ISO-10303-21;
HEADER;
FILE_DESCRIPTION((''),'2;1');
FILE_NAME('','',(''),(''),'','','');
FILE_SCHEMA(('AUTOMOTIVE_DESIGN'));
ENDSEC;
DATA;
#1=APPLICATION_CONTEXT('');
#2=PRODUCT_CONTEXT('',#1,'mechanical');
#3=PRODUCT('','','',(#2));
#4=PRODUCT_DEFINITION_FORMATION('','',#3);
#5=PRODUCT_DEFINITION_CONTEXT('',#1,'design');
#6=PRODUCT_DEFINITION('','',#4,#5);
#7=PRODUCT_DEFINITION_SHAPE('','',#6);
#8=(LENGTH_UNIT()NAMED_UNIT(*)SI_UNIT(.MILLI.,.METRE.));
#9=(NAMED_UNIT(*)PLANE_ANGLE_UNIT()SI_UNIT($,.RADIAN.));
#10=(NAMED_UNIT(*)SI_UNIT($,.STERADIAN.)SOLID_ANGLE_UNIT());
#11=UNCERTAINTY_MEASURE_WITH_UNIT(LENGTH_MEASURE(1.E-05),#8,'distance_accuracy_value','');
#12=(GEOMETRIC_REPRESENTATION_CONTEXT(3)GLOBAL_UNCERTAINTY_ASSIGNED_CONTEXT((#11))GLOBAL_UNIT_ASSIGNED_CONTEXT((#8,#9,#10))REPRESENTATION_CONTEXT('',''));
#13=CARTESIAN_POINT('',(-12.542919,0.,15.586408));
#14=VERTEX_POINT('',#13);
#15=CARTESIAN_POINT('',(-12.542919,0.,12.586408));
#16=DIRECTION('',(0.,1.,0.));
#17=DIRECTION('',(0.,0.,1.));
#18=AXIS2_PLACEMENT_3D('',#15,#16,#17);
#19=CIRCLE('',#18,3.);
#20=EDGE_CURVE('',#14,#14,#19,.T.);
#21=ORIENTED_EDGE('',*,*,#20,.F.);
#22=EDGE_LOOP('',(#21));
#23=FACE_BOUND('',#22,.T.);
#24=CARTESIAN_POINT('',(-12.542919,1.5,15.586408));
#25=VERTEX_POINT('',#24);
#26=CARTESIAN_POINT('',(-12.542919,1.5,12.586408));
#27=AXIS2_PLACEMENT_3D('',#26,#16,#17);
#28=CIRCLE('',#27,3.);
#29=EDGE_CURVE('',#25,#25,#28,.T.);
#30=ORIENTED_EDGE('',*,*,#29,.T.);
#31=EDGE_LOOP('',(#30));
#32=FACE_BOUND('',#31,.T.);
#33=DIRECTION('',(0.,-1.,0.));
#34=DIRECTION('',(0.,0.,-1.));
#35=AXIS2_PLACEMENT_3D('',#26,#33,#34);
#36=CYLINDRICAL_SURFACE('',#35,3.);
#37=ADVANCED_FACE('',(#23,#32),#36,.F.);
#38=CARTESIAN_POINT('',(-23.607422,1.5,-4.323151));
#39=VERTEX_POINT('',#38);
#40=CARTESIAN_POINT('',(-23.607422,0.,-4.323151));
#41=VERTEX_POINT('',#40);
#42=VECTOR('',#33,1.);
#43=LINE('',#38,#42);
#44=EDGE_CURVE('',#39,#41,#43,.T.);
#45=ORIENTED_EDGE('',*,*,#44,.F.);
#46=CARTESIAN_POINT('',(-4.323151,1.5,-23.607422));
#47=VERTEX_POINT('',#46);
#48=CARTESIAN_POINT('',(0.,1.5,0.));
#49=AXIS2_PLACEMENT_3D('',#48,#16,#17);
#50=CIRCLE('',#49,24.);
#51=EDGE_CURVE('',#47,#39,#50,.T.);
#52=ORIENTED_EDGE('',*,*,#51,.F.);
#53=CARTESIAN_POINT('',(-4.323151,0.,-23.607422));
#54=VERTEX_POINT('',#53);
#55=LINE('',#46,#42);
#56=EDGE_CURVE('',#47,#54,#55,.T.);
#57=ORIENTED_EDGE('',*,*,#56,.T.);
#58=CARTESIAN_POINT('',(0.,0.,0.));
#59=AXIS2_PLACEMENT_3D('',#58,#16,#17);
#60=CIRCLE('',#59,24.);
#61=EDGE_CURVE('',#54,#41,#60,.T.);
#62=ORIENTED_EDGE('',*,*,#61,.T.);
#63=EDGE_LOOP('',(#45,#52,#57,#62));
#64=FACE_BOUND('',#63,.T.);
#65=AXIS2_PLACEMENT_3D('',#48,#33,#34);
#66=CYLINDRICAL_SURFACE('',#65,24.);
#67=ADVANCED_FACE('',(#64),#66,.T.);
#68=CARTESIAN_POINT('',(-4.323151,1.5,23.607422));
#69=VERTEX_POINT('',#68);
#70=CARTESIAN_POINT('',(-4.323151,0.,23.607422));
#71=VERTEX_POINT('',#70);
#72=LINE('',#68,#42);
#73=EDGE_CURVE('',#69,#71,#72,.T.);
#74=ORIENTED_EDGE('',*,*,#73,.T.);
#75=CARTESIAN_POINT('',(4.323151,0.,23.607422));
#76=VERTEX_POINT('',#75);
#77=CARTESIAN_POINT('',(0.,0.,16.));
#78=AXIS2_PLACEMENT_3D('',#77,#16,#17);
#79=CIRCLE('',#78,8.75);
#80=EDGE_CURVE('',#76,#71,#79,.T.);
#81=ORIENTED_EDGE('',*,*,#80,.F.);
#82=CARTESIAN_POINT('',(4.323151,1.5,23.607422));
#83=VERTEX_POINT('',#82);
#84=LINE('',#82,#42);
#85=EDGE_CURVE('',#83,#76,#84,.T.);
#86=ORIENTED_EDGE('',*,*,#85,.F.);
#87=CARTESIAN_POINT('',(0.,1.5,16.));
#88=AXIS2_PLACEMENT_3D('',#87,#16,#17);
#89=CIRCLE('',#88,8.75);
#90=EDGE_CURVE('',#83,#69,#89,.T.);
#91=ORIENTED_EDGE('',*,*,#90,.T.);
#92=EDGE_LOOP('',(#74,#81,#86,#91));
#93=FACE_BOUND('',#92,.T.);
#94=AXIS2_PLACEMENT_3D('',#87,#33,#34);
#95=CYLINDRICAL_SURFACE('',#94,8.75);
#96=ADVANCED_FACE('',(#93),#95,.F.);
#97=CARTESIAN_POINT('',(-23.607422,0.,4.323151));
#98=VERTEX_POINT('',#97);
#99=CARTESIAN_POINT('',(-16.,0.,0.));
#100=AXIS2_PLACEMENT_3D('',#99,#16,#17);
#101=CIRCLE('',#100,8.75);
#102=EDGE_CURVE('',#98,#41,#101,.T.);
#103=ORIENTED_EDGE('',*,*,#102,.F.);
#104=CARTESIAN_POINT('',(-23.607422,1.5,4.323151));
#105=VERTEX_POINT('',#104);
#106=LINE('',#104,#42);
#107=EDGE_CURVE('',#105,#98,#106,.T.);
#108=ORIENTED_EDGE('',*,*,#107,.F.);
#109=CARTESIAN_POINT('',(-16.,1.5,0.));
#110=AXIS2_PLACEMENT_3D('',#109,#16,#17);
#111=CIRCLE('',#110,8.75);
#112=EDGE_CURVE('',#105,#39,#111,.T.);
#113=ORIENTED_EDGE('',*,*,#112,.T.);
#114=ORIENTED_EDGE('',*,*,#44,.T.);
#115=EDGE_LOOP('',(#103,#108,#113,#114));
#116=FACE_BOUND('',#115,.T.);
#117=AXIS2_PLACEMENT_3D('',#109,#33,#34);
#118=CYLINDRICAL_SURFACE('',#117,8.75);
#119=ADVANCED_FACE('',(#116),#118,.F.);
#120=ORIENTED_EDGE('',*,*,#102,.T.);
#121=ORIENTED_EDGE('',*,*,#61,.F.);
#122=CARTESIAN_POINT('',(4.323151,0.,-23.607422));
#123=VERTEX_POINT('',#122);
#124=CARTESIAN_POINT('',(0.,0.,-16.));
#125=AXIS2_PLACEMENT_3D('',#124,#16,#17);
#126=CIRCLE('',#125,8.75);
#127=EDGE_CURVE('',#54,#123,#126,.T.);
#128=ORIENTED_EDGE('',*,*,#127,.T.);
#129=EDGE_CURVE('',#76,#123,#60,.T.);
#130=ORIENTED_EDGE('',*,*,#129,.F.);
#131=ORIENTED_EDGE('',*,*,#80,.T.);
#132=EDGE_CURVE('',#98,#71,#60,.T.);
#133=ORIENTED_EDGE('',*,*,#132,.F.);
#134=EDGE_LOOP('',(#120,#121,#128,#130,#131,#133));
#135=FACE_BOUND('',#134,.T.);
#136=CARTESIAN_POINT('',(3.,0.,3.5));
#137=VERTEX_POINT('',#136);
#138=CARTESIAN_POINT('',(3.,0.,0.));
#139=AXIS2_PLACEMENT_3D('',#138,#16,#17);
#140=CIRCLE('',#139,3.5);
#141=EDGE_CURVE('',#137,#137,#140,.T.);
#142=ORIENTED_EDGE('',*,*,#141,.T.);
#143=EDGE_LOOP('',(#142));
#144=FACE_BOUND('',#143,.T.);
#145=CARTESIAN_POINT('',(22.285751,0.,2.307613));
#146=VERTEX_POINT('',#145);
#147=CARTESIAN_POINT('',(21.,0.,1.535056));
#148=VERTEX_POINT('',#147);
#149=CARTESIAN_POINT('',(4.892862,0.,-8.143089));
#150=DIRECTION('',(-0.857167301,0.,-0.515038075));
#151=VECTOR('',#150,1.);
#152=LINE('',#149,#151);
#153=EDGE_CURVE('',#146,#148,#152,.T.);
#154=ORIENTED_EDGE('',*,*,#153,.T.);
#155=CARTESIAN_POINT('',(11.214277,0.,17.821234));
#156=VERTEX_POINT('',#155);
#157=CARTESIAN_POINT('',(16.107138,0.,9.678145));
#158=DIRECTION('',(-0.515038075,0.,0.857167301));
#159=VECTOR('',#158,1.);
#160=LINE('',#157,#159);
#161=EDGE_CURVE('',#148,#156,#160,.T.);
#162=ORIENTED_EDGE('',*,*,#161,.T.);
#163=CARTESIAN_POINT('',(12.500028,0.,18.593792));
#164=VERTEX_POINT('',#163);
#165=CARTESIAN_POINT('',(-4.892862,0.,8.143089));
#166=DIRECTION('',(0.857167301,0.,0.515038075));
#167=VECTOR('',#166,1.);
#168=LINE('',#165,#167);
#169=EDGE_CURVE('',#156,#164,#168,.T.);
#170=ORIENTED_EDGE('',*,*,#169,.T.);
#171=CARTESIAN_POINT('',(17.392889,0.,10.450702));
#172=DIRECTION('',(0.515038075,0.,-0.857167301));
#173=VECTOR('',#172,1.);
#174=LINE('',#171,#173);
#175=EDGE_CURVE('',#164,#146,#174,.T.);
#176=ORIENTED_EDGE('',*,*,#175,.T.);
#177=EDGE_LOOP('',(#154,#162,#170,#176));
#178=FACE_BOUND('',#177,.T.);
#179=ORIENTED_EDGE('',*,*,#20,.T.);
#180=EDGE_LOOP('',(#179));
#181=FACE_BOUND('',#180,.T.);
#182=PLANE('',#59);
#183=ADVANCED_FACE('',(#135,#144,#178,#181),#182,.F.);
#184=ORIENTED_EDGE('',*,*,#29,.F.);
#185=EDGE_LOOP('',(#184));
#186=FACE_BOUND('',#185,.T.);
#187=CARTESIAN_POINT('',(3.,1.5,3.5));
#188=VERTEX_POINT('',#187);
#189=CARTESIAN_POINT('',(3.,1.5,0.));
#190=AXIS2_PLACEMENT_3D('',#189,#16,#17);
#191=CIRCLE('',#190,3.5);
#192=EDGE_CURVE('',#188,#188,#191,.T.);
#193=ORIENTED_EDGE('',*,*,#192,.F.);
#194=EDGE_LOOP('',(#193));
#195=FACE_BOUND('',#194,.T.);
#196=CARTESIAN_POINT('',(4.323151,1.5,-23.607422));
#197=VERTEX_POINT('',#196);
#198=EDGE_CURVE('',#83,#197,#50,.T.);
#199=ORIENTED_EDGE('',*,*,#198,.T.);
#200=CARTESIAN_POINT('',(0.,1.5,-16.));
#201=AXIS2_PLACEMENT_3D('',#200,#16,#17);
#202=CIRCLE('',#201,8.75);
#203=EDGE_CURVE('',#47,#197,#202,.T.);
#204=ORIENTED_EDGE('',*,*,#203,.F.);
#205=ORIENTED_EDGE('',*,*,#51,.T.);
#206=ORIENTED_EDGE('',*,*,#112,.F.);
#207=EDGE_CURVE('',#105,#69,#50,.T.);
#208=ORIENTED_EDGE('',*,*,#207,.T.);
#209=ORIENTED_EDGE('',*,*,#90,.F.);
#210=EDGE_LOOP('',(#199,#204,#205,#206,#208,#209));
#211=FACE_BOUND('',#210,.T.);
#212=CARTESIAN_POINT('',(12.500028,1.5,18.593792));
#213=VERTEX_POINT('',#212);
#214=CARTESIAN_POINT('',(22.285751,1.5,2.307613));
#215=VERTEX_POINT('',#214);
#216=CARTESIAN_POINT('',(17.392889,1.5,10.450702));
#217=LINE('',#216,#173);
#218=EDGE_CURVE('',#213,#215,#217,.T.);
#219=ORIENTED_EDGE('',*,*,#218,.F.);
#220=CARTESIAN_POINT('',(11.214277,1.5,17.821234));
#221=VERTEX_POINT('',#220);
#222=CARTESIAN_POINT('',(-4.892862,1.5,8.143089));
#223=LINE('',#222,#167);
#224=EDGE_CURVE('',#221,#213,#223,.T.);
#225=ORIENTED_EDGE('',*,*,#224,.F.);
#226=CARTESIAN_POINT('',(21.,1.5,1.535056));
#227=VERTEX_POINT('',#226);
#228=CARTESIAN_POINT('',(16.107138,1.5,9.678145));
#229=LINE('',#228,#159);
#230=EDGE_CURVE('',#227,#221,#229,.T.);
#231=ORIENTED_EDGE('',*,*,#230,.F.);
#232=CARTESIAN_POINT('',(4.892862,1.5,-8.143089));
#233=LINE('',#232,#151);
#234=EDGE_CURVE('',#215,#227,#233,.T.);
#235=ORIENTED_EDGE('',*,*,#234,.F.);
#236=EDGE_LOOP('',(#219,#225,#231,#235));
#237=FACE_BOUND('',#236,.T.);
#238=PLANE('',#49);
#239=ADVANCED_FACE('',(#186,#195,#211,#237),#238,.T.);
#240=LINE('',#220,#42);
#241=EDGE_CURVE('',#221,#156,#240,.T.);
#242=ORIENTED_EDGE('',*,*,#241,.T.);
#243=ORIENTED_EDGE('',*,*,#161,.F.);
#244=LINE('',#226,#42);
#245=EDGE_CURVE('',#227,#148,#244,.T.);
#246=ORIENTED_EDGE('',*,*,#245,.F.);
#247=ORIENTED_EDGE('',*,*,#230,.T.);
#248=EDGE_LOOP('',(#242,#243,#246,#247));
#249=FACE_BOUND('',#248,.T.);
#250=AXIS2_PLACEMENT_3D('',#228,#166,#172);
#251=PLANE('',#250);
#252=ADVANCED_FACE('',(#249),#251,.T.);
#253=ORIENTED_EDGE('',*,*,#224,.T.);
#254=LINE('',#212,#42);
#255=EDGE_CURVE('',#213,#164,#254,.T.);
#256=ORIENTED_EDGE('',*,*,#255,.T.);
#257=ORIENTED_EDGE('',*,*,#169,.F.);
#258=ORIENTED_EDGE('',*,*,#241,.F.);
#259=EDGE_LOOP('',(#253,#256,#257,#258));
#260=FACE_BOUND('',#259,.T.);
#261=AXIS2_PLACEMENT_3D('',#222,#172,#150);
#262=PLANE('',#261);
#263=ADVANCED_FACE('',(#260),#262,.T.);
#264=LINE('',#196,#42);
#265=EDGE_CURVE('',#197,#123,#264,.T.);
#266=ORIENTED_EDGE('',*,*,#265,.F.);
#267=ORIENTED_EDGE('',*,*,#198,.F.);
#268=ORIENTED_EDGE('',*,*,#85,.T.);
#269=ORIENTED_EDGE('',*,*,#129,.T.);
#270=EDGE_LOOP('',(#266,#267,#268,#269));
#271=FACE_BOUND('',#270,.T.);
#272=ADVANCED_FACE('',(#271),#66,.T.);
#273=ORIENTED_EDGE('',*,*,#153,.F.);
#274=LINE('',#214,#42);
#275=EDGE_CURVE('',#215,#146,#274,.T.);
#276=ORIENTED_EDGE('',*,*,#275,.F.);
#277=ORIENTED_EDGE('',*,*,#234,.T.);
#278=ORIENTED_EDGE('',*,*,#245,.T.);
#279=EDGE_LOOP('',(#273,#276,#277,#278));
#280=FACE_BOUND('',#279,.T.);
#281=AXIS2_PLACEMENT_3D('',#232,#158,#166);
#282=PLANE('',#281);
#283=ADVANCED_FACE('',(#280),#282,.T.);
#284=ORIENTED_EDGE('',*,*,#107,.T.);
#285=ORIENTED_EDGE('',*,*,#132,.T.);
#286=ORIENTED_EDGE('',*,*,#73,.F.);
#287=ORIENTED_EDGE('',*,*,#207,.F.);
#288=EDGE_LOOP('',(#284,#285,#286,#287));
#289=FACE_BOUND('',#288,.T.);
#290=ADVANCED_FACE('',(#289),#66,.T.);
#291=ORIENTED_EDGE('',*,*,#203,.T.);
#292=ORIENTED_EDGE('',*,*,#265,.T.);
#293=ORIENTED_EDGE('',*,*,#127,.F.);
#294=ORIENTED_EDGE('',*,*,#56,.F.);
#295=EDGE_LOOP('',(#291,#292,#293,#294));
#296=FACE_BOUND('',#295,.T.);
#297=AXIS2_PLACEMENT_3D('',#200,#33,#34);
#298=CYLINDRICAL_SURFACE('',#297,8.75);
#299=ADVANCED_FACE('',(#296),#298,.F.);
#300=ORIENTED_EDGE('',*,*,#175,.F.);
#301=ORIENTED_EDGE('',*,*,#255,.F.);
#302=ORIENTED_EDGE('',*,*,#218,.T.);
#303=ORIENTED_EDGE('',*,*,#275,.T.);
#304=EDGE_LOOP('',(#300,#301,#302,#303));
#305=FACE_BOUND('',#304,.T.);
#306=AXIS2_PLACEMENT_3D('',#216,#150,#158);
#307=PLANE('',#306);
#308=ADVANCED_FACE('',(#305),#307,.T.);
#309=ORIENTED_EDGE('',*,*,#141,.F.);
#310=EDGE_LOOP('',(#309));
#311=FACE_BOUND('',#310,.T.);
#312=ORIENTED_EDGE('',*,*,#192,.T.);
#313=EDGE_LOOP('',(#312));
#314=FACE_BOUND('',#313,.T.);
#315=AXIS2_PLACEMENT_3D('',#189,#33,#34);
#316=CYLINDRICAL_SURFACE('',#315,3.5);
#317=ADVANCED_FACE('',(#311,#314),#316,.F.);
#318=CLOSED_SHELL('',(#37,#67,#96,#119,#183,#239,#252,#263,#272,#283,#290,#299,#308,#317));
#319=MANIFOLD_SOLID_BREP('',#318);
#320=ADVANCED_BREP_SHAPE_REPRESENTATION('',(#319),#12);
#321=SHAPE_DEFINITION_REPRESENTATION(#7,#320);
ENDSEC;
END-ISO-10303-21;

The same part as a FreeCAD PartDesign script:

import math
import FreeCAD as App
import Part
import Sketcher
from FreeCAD import Vector
Q = App.Units.Quantity

doc = App.newDocument("Part")
params = doc.addObject("Spreadsheet::Sheet", "Params")
for row, (alias, value) in enumerate([
    ("sketch1_diameter", "6 mm"),
    ("sketch1_diameter2", "7 mm"),
    ("sketch1_radius", "24 mm"),
    ("sketch1_radius2", "8.75 mm"),
    ("sketch1_length", "19 mm"),
    ("pad1_length", "1.5 mm"),
], start=1):
    params.set(f"A{row}", alias)
    params.set(f"B{row}", "=" + value)
    params.setAlias(f"B{row}", alias)

body = doc.addObject("PartDesign::Body", "Body")

sketch1 = doc.addObject("Sketcher::SketchObject", "Sketch")
body.addObject(sketch1)
sketch1.AttachmentSupport = (doc.XZ_Plane, [""])
sketch1.MapMode = "FlatFace"
sketch1.addGeometry([
    Part.ArcOfCircle(Part.Circle(Vector(0, 0, 0), Vector(0, 0, 1), 24), math.radians(0), math.radians(80)),
    Part.ArcOfCircle(Part.Circle(Vector(0, 0, 0), Vector(0, 0, 1), 24), math.radians(-80), math.radians(0)),
    Part.ArcOfCircle(Part.Circle(Vector(0, -16, 0), Vector(0, 0, 1), 8.8), math.radians(-60), math.radians(0)),
    Part.ArcOfCircle(Part.Circle(Vector(0, -16, 0), Vector(0, 0, 1), 8.8), math.radians(0), math.radians(240)),
    Part.ArcOfCircle(Part.Circle(Vector(0, 0, 0), Vector(0, 0, 1), 24), math.radians(-170), math.radians(-100)),
    Part.ArcOfCircle(Part.Circle(Vector(-16, 0, 0), Vector(0, 0, 1), 8.8), math.radians(-150), math.radians(0)),
    Part.ArcOfCircle(Part.Circle(Vector(-16, 0, 0), Vector(0, 0, 1), 8.8), math.radians(0), math.radians(150)),
    Part.ArcOfCircle(Part.Circle(Vector(0, 0, 0), Vector(0, 0, 1), 24), math.radians(100), math.radians(170)),
    Part.ArcOfCircle(Part.Circle(Vector(0, 16, 0), Vector(0, 0, 1), 8.8), math.radians(120), math.radians(360)),
    Part.ArcOfCircle(Part.Circle(Vector(0, 16, 0), Vector(0, 0, 1), 8.8), math.radians(0), math.radians(60)),
    Part.Circle(Vector(-12.5, 12.6, 0), Vector(0, 0, 1), 3),
    Part.LineSegment(Vector(12.5, 18.6, 0), Vector(11.2, 17.8, 0)),
    Part.LineSegment(Vector(11.2, 17.8, 0), Vector(21, 1.5, 0)),
    Part.LineSegment(Vector(21, 1.5, 0), Vector(22.3, 2.3, 0)),
    Part.LineSegment(Vector(22.3, 2.3, 0), Vector(12.5, 18.6, 0)),
    Part.Circle(Vector(3, 0, 0), Vector(0, 0, 1), 3.5),
], False)
sketch1.addConstraint([
    Sketcher.Constraint("Tangent", 0, 1, 1, 2),
    Sketcher.Constraint("Coincident", 1, 1, 2, 1),
    Sketcher.Constraint("Tangent", 2, 2, 3, 1),
    Sketcher.Constraint("Coincident", 3, 2, 4, 2),
    Sketcher.Constraint("Coincident", 4, 1, 5, 1),
    Sketcher.Constraint("Tangent", 5, 2, 6, 1),
    Sketcher.Constraint("Coincident", 6, 2, 7, 2),
    Sketcher.Constraint("Coincident", 7, 1, 8, 1),
    Sketcher.Constraint("Tangent", 8, 2, 9, 1),
    Sketcher.Constraint("Coincident", 9, 2, 0, 2),
    Sketcher.Constraint("Coincident", 11, 2, 12, 1),
    Sketcher.Constraint("Coincident", 12, 2, 13, 1),
    Sketcher.Constraint("Coincident", 13, 2, 14, 1),
    Sketcher.Constraint("Coincident", 14, 2, 11, 1),
    Sketcher.Constraint("Coincident", 0, 3, -1, 1),
    Sketcher.Constraint("Coincident", 4, 3, -1, 1),
    Sketcher.Constraint("Coincident", 7, 3, -1, 1),
    Sketcher.Constraint("Equal", 0, 1),
    Sketcher.Constraint("Equal", 2, 3),
    Sketcher.Constraint("Equal", 1, 4),
    Sketcher.Constraint("Equal", 3, 5),
    Sketcher.Constraint("Equal", 5, 6),
    Sketcher.Constraint("Equal", 4, 7),
    Sketcher.Constraint("Equal", 6, 8),
    Sketcher.Constraint("Equal", 8, 9),
    Sketcher.Constraint("Symmetric", 2, 3, 8, 3, -1, 1),
    Sketcher.Constraint("Symmetric", 2, 2, 8, 2, -1),
    Sketcher.Constraint("PointOnObject", 5, 3, -1),
    Sketcher.Constraint("PointOnObject", 15, 3, -1),
    Sketcher.Constraint("PointOnObject", 0, 1, -1),
    Sketcher.Constraint("PointOnObject", 5, 2, -1),
    Sketcher.Constraint("Perpendicular", 11, 12),
    Sketcher.Constraint("Perpendicular", 12, 13),
    Sketcher.Constraint("Perpendicular", 13, 14),
    Sketcher.Constraint("Horizontal", 3, 3, 2, 2),
    Sketcher.Constraint("Diameter", 10, 6.0),
    Sketcher.Constraint("Diameter", 15, 7.0),
    Sketcher.Constraint("Radius", 0, 24.0),
    Sketcher.Constraint("Angle", 11, Q("-149 deg")),
    Sketcher.Constraint("Radius", 2, 8.75),
    Sketcher.Constraint("Distance", 12, 19.0),
    Sketcher.Constraint("DistanceY", 2, 3, -1, 1, 16.0),
    Sketcher.Constraint("DistanceX", 5, 3, -1, 1, 16.0),
    Sketcher.Constraint("DistanceX", -1, 1, 15, 3, 3.0),
    Sketcher.Constraint("DistanceX", -1, 1, 12, 2, 21.0),
    Sketcher.Constraint("Distance", 11, 1.5),
    Sketcher.Constraint("DistanceX", 10, 3, -1, 1, 12.542919),
    Sketcher.Constraint("DistanceY", -1, 1, 14, 2, 18.593792),
    Sketcher.Constraint("DistanceY", 4, 1, 10, 3, 16.909559),
])
sketch1.setExpression("Constraints[35]", "Params.sketch1_diameter")
sketch1.setExpression("Constraints[36]", "Params.sketch1_diameter2")
sketch1.setExpression("Constraints[37]", "Params.sketch1_radius")
sketch1.setExpression("Constraints[39]", "Params.sketch1_radius2")
sketch1.setExpression("Constraints[40]", "Params.sketch1_length")
pad1 = doc.addObject("PartDesign::Pad", "Pad")
body.addObject(pad1)
pad1.Profile = sketch1
pad1.setExpression("Length", "Params.pad1_length")
pad1.Reversed = True

doc.recompute()
